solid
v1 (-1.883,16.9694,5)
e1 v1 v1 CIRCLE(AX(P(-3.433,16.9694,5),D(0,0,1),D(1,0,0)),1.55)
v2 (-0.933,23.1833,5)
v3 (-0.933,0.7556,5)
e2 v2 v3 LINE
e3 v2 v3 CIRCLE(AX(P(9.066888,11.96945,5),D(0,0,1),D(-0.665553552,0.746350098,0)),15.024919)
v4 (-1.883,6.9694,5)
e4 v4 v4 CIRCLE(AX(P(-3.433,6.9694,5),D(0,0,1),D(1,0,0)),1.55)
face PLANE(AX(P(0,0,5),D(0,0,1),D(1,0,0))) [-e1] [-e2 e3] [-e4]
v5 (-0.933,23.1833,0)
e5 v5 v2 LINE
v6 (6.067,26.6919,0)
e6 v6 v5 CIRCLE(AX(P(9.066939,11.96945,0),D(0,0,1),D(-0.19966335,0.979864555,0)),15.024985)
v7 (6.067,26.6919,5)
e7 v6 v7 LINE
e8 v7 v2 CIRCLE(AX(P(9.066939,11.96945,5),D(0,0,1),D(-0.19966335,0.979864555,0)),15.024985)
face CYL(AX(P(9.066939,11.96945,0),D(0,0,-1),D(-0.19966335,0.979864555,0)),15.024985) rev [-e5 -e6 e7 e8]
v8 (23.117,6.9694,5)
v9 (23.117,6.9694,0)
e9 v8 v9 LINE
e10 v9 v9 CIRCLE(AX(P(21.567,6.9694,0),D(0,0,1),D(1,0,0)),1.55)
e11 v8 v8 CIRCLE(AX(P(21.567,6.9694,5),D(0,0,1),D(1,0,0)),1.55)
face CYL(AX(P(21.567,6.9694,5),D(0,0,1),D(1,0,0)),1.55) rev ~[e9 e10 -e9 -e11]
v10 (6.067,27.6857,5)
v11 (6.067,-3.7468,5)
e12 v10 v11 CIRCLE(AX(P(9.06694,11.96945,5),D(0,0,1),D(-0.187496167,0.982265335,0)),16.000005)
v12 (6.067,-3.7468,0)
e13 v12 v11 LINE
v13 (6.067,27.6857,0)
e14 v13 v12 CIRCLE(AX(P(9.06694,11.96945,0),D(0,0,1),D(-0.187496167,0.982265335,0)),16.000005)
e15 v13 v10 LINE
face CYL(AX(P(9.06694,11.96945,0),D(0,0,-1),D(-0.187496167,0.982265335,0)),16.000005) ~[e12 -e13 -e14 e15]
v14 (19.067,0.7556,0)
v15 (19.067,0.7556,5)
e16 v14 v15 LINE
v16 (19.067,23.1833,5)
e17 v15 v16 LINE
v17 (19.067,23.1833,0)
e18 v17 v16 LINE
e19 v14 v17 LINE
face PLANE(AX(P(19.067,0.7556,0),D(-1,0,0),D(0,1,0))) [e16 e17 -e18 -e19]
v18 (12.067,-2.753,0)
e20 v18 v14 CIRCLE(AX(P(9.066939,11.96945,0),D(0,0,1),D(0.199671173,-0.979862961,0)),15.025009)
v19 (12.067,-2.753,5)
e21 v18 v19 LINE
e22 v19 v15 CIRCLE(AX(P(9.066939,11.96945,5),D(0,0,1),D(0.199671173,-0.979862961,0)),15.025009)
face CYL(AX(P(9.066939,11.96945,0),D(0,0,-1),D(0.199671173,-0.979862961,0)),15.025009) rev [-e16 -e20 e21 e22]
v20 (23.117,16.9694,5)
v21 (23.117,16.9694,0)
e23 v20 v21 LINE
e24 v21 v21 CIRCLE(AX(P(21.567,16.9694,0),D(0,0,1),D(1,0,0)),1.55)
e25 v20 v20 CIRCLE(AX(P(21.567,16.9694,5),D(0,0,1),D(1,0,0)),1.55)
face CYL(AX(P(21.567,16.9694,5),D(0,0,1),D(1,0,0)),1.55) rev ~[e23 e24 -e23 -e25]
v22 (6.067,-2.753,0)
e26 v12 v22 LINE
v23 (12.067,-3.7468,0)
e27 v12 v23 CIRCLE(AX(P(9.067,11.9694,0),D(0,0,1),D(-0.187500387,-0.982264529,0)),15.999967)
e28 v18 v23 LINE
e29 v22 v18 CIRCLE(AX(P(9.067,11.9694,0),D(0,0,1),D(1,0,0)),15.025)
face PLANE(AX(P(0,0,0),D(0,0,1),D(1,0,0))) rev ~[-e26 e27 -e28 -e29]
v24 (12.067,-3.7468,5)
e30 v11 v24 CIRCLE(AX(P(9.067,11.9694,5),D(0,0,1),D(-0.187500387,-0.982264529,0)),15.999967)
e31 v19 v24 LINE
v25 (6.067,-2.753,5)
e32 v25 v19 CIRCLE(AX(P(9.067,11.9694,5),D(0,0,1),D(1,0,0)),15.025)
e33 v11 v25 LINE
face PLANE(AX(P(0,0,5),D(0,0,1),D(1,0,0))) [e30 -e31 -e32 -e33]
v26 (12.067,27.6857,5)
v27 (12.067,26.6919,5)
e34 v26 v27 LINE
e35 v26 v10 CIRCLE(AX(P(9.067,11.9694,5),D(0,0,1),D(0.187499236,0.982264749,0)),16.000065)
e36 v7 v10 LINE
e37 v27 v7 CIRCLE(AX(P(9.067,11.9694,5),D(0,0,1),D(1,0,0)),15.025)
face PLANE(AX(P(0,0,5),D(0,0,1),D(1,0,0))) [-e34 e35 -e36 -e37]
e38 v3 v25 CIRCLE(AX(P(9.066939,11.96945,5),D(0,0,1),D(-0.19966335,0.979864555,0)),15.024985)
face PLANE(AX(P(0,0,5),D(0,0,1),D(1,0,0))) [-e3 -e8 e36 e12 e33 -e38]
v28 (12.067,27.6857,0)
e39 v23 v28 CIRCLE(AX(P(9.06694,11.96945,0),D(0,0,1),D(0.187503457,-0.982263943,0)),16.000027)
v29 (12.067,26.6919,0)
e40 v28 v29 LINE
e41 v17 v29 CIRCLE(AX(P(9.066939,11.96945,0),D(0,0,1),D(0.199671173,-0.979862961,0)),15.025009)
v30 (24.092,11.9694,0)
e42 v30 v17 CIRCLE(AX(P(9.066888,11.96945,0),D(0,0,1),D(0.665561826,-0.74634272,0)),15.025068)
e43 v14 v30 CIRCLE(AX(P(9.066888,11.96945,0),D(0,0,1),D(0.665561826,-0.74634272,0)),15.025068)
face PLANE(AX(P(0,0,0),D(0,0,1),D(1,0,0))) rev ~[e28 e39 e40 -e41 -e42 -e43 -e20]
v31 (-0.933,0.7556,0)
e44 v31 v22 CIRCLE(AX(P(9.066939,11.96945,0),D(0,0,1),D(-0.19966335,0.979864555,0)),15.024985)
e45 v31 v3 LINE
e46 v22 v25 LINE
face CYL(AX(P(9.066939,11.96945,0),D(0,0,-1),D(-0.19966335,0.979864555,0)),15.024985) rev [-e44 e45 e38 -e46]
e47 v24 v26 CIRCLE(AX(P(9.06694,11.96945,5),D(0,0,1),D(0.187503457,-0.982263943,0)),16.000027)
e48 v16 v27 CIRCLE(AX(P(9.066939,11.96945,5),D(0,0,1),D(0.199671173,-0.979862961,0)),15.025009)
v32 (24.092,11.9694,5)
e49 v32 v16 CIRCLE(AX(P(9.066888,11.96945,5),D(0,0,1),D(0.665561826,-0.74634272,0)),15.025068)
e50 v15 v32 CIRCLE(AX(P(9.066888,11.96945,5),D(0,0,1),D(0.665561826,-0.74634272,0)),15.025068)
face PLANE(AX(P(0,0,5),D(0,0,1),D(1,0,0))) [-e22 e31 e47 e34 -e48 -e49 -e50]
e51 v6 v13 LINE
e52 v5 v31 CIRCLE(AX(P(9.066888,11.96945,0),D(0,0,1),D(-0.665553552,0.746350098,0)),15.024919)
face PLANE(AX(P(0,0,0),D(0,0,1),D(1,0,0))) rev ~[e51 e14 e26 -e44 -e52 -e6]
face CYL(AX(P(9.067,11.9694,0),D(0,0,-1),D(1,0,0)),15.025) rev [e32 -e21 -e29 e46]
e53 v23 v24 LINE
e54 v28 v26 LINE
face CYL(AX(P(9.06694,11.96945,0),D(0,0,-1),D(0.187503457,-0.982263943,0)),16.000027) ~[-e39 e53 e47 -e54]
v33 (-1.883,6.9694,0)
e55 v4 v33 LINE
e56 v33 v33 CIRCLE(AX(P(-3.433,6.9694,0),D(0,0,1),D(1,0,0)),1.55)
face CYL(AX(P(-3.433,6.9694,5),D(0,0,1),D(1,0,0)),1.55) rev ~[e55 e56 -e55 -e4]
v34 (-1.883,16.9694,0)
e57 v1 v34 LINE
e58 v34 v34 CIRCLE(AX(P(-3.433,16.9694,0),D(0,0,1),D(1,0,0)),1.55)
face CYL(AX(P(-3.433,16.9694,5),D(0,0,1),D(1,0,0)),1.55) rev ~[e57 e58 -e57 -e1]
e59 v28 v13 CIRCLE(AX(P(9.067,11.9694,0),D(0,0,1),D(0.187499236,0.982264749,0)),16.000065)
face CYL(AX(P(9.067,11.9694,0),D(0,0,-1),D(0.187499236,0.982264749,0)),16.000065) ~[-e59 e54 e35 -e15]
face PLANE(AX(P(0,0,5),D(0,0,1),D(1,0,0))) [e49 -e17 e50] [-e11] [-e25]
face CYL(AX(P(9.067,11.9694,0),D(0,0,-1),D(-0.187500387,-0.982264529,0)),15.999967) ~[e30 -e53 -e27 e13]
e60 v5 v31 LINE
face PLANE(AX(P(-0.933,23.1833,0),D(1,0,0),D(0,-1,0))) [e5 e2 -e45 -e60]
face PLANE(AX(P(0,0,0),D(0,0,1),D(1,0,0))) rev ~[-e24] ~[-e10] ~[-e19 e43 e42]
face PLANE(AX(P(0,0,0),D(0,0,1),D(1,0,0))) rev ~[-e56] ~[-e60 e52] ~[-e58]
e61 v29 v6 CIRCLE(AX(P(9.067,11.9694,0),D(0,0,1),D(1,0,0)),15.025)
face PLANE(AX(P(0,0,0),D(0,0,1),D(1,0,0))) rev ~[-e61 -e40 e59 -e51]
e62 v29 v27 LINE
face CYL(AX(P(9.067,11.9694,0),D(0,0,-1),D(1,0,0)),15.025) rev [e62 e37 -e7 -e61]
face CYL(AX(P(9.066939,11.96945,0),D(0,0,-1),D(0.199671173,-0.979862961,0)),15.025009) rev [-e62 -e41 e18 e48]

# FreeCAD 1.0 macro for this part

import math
import FreeCAD as App
import Part
import Sketcher
from FreeCAD import Vector
Q = App.Units.Quantity

doc = App.newDocument("Part")
params = doc.addObject("Spreadsheet::Sheet", "Params")
for row, (alias, value) in enumerate([
    ("sketch1_radius", "16 mm"),
    ("sketch1_width", "3 mm"),
    ("pad1_length", "5 mm"),
    ("sketch2_diameter", "3.1 mm"),
], start=1):
    params.set(f"A{row}", alias)
    params.set(f"B{row}", "=" + value)
    params.setAlias(f"B{row}", alias)

body = doc.addObject("PartDesign::Body", "Body")

# Sketch on XY plane
sketch1 = body.newObject("Sketcher::SketchObject", "Sketch")
sketch1.AttachmentSupport = (doc.getObject("XY_Plane"), [""])
sketch1.MapMode = "FlatFace"
sketch1.addGeometry([
    Part.ArcOfCircle(Part.Circle(Vector(9, 12, 0), Vector(0, 0, 1), 16), math.radians(-79), math.radians(79)),  # 0
    Part.ArcOfCircle(Part.Circle(Vector(9, 12, 0), Vector(0, 0, 1), 16), math.radians(79), math.radians(101)),  # 1
    Part.ArcOfCircle(Part.Circle(Vector(9, 12, 0), Vector(0, 0, 1), 16), math.radians(101), math.radians(259)),  # 2
    Part.ArcOfCircle(Part.Circle(Vector(9, 12, 0), Vector(0, 0, 1), 16), math.radians(-101), math.radians(-79)),  # 3
    Part.LineSegment(Vector(19, 23, 0), Vector(19, 1, 0)),  # 4
    Part.ArcOfCircle(Part.Circle(Vector(9, 12, 0), Vector(0, 0, 1), 15), math.radians(-78), math.radians(-48)),  # 5
    Part.ArcOfCircle(Part.Circle(Vector(9, 12, 0), Vector(0, 0, 1), 15), math.radians(-102), math.radians(-78)),  # 6
    Part.ArcOfCircle(Part.Circle(Vector(9, 12, 0), Vector(0, 0, 1), 15), math.radians(-132), math.radians(-102)),  # 7
    Part.LineSegment(Vector(-1, 1, 0), Vector(-1, 23, 0)),  # 8
    Part.ArcOfCircle(Part.Circle(Vector(9, 12, 0), Vector(0, 0, 1), 15), math.radians(102), math.radians(132)),  # 9
    Part.ArcOfCircle(Part.Circle(Vector(9, 12, 0), Vector(0, 0, 1), 15), math.radians(78), math.radians(102)),  # 10
    Part.ArcOfCircle(Part.Circle(Vector(9, 12, 0), Vector(0, 0, 1), 15), math.radians(48), math.radians(78)),  # 11
], False)
sketch1.addConstraint([
    Sketcher.Constraint("Tangent", 0, 2, 1, 1),
    Sketcher.Constraint("Tangent", 1, 2, 2, 1),
    Sketcher.Constraint("Tangent", 2, 2, 3, 1),
    Sketcher.Constraint("Tangent", 3, 2, 0, 1),
    Sketcher.Constraint("Coincident", 4, 2, 5, 2),
    Sketcher.Constraint("Tangent", 5, 1, 6, 2),
    Sketcher.Constraint("Tangent", 6, 1, 7, 2),
    Sketcher.Constraint("Coincident", 7, 1, 8, 1),
    Sketcher.Constraint("Coincident", 8, 2, 9, 2),
    Sketcher.Constraint("Tangent", 9, 1, 10, 2),
    Sketcher.Constraint("Tangent", 10, 1, 11, 2),
    Sketcher.Constraint("Coincident", 11, 1, 4, 1),
    Sketcher.Constraint("Vertical", 4),
    Sketcher.Constraint("Vertical", 8),
    Sketcher.Constraint("Coincident", 5, 3, 0, 3),
    Sketcher.Constraint("Coincident", 7, 3, 0, 3),
    Sketcher.Constraint("Coincident", 9, 3, 0, 3),
    Sketcher.Constraint("Coincident", 11, 3, 0, 3),
    Sketcher.Constraint("Equal", 0, 1),
    Sketcher.Constraint("Equal", 7, 9),
    Sketcher.Constraint("Horizontal", 0, 2, 1, 2),
    Sketcher.Constraint("Horizontal", 2, 2, 3, 2),
    Sketcher.Constraint("Horizontal", 5, 1, 6, 1),
    Sketcher.Constraint("Horizontal", 4, 2, 7, 1),
    Sketcher.Constraint("Horizontal", 9, 1, 10, 1),
    Sketcher.Constraint("Vertical", 1, 2, 2, 2),
    Sketcher.Constraint("Vertical", 3, 2, 5, 1),
    Sketcher.Constraint("Vertical", 6, 1, 9, 1),
    Sketcher.Constraint("Radius", 0, Q("16 mm")),
    Sketcher.Constraint("Radius", 5, Q("15.025 mm")),
    Sketcher.Constraint("DistanceX", 0, 3, 0, 2, Q("3 mm")),
    Sketcher.Constraint("DistanceX", 3, 2, 4, 2, Q("7 mm")),
    Sketcher.Constraint("DistanceX", -1, 1, 0, 3, Q("9.067 mm")),
    Sketcher.Constraint("DistanceY", 5, 1, -1, 1, Q("2.753 mm")),
])
sketch1.setExpression("Constraints[28]", "Params.sketch1_radius")
sketch1.setExpression("Constraints[30]", "Params.sketch1_width")
pad1 = body.newObject("PartDesign::Pad", "Pad")
pad1.Profile = sketch1
pad1.setExpression("Length", "Params.pad1_length")

# Sketch on XY plane
sketch2 = body.newObject("Sketcher::SketchObject", "Sketch001")
sketch2.AttachmentSupport = (doc.getObject("XY_Plane"), [""])
sketch2.MapMode = "FlatFace"
sketch2.AttachmentOffset = App.Placement(Vector(0, 0, 5), App.Rotation())
sketch2.addGeometry([
    Part.Circle(Vector(21.6, 17, 0), Vector(0, 0, 1), 1.6),
    Part.Circle(Vector(21.6, 7, 0), Vector(0, 0, 1), 1.6),
    Part.Circle(Vector(-3.4, 7, 0), Vector(0, 0, 1), 1.6),
    Part.Circle(Vector(-3.4, 17, 0), Vector(0, 0, 1), 1.6),
], False)
sketch2.addConstraint([
    Sketcher.Constraint("Equal", 0, 1),
    Sketcher.Constraint("Equal", 1, 2),
    Sketcher.Constraint("Equal", 2, 3),
    Sketcher.Constraint("Horizontal", 1, 3, 2, 3),
    Sketcher.Constraint("Horizontal", 0, 3, 3, 3),
    Sketcher.Constraint("Vertical", 0, 3, 1, 3),
    Sketcher.Constraint("Vertical", 2, 3, 3, 3),
    Sketcher.Constraint("Diameter", 0, Q("3.1 mm")),
    Sketcher.Constraint("DistanceY", 1, 3, 0, 3, Q("10 mm")),
    Sketcher.Constraint("DistanceX", 2, 3, 1, 3, Q("25 mm")),
    Sketcher.Constraint("DistanceX", -1, 1, 0, 3, Q("21.567 mm")),
    Sketcher.Constraint("DistanceY", -1, 1, 0, 3, Q("16.9694 mm")),
])
sketch2.setExpression("Constraints[7]", "Params.sketch2_diameter")
pocket1 = body.newObject("PartDesign::Pocket", "Pocket")
pocket1.Profile = sketch2
pocket1.Type = "ThroughAll"

doc.recompute()
